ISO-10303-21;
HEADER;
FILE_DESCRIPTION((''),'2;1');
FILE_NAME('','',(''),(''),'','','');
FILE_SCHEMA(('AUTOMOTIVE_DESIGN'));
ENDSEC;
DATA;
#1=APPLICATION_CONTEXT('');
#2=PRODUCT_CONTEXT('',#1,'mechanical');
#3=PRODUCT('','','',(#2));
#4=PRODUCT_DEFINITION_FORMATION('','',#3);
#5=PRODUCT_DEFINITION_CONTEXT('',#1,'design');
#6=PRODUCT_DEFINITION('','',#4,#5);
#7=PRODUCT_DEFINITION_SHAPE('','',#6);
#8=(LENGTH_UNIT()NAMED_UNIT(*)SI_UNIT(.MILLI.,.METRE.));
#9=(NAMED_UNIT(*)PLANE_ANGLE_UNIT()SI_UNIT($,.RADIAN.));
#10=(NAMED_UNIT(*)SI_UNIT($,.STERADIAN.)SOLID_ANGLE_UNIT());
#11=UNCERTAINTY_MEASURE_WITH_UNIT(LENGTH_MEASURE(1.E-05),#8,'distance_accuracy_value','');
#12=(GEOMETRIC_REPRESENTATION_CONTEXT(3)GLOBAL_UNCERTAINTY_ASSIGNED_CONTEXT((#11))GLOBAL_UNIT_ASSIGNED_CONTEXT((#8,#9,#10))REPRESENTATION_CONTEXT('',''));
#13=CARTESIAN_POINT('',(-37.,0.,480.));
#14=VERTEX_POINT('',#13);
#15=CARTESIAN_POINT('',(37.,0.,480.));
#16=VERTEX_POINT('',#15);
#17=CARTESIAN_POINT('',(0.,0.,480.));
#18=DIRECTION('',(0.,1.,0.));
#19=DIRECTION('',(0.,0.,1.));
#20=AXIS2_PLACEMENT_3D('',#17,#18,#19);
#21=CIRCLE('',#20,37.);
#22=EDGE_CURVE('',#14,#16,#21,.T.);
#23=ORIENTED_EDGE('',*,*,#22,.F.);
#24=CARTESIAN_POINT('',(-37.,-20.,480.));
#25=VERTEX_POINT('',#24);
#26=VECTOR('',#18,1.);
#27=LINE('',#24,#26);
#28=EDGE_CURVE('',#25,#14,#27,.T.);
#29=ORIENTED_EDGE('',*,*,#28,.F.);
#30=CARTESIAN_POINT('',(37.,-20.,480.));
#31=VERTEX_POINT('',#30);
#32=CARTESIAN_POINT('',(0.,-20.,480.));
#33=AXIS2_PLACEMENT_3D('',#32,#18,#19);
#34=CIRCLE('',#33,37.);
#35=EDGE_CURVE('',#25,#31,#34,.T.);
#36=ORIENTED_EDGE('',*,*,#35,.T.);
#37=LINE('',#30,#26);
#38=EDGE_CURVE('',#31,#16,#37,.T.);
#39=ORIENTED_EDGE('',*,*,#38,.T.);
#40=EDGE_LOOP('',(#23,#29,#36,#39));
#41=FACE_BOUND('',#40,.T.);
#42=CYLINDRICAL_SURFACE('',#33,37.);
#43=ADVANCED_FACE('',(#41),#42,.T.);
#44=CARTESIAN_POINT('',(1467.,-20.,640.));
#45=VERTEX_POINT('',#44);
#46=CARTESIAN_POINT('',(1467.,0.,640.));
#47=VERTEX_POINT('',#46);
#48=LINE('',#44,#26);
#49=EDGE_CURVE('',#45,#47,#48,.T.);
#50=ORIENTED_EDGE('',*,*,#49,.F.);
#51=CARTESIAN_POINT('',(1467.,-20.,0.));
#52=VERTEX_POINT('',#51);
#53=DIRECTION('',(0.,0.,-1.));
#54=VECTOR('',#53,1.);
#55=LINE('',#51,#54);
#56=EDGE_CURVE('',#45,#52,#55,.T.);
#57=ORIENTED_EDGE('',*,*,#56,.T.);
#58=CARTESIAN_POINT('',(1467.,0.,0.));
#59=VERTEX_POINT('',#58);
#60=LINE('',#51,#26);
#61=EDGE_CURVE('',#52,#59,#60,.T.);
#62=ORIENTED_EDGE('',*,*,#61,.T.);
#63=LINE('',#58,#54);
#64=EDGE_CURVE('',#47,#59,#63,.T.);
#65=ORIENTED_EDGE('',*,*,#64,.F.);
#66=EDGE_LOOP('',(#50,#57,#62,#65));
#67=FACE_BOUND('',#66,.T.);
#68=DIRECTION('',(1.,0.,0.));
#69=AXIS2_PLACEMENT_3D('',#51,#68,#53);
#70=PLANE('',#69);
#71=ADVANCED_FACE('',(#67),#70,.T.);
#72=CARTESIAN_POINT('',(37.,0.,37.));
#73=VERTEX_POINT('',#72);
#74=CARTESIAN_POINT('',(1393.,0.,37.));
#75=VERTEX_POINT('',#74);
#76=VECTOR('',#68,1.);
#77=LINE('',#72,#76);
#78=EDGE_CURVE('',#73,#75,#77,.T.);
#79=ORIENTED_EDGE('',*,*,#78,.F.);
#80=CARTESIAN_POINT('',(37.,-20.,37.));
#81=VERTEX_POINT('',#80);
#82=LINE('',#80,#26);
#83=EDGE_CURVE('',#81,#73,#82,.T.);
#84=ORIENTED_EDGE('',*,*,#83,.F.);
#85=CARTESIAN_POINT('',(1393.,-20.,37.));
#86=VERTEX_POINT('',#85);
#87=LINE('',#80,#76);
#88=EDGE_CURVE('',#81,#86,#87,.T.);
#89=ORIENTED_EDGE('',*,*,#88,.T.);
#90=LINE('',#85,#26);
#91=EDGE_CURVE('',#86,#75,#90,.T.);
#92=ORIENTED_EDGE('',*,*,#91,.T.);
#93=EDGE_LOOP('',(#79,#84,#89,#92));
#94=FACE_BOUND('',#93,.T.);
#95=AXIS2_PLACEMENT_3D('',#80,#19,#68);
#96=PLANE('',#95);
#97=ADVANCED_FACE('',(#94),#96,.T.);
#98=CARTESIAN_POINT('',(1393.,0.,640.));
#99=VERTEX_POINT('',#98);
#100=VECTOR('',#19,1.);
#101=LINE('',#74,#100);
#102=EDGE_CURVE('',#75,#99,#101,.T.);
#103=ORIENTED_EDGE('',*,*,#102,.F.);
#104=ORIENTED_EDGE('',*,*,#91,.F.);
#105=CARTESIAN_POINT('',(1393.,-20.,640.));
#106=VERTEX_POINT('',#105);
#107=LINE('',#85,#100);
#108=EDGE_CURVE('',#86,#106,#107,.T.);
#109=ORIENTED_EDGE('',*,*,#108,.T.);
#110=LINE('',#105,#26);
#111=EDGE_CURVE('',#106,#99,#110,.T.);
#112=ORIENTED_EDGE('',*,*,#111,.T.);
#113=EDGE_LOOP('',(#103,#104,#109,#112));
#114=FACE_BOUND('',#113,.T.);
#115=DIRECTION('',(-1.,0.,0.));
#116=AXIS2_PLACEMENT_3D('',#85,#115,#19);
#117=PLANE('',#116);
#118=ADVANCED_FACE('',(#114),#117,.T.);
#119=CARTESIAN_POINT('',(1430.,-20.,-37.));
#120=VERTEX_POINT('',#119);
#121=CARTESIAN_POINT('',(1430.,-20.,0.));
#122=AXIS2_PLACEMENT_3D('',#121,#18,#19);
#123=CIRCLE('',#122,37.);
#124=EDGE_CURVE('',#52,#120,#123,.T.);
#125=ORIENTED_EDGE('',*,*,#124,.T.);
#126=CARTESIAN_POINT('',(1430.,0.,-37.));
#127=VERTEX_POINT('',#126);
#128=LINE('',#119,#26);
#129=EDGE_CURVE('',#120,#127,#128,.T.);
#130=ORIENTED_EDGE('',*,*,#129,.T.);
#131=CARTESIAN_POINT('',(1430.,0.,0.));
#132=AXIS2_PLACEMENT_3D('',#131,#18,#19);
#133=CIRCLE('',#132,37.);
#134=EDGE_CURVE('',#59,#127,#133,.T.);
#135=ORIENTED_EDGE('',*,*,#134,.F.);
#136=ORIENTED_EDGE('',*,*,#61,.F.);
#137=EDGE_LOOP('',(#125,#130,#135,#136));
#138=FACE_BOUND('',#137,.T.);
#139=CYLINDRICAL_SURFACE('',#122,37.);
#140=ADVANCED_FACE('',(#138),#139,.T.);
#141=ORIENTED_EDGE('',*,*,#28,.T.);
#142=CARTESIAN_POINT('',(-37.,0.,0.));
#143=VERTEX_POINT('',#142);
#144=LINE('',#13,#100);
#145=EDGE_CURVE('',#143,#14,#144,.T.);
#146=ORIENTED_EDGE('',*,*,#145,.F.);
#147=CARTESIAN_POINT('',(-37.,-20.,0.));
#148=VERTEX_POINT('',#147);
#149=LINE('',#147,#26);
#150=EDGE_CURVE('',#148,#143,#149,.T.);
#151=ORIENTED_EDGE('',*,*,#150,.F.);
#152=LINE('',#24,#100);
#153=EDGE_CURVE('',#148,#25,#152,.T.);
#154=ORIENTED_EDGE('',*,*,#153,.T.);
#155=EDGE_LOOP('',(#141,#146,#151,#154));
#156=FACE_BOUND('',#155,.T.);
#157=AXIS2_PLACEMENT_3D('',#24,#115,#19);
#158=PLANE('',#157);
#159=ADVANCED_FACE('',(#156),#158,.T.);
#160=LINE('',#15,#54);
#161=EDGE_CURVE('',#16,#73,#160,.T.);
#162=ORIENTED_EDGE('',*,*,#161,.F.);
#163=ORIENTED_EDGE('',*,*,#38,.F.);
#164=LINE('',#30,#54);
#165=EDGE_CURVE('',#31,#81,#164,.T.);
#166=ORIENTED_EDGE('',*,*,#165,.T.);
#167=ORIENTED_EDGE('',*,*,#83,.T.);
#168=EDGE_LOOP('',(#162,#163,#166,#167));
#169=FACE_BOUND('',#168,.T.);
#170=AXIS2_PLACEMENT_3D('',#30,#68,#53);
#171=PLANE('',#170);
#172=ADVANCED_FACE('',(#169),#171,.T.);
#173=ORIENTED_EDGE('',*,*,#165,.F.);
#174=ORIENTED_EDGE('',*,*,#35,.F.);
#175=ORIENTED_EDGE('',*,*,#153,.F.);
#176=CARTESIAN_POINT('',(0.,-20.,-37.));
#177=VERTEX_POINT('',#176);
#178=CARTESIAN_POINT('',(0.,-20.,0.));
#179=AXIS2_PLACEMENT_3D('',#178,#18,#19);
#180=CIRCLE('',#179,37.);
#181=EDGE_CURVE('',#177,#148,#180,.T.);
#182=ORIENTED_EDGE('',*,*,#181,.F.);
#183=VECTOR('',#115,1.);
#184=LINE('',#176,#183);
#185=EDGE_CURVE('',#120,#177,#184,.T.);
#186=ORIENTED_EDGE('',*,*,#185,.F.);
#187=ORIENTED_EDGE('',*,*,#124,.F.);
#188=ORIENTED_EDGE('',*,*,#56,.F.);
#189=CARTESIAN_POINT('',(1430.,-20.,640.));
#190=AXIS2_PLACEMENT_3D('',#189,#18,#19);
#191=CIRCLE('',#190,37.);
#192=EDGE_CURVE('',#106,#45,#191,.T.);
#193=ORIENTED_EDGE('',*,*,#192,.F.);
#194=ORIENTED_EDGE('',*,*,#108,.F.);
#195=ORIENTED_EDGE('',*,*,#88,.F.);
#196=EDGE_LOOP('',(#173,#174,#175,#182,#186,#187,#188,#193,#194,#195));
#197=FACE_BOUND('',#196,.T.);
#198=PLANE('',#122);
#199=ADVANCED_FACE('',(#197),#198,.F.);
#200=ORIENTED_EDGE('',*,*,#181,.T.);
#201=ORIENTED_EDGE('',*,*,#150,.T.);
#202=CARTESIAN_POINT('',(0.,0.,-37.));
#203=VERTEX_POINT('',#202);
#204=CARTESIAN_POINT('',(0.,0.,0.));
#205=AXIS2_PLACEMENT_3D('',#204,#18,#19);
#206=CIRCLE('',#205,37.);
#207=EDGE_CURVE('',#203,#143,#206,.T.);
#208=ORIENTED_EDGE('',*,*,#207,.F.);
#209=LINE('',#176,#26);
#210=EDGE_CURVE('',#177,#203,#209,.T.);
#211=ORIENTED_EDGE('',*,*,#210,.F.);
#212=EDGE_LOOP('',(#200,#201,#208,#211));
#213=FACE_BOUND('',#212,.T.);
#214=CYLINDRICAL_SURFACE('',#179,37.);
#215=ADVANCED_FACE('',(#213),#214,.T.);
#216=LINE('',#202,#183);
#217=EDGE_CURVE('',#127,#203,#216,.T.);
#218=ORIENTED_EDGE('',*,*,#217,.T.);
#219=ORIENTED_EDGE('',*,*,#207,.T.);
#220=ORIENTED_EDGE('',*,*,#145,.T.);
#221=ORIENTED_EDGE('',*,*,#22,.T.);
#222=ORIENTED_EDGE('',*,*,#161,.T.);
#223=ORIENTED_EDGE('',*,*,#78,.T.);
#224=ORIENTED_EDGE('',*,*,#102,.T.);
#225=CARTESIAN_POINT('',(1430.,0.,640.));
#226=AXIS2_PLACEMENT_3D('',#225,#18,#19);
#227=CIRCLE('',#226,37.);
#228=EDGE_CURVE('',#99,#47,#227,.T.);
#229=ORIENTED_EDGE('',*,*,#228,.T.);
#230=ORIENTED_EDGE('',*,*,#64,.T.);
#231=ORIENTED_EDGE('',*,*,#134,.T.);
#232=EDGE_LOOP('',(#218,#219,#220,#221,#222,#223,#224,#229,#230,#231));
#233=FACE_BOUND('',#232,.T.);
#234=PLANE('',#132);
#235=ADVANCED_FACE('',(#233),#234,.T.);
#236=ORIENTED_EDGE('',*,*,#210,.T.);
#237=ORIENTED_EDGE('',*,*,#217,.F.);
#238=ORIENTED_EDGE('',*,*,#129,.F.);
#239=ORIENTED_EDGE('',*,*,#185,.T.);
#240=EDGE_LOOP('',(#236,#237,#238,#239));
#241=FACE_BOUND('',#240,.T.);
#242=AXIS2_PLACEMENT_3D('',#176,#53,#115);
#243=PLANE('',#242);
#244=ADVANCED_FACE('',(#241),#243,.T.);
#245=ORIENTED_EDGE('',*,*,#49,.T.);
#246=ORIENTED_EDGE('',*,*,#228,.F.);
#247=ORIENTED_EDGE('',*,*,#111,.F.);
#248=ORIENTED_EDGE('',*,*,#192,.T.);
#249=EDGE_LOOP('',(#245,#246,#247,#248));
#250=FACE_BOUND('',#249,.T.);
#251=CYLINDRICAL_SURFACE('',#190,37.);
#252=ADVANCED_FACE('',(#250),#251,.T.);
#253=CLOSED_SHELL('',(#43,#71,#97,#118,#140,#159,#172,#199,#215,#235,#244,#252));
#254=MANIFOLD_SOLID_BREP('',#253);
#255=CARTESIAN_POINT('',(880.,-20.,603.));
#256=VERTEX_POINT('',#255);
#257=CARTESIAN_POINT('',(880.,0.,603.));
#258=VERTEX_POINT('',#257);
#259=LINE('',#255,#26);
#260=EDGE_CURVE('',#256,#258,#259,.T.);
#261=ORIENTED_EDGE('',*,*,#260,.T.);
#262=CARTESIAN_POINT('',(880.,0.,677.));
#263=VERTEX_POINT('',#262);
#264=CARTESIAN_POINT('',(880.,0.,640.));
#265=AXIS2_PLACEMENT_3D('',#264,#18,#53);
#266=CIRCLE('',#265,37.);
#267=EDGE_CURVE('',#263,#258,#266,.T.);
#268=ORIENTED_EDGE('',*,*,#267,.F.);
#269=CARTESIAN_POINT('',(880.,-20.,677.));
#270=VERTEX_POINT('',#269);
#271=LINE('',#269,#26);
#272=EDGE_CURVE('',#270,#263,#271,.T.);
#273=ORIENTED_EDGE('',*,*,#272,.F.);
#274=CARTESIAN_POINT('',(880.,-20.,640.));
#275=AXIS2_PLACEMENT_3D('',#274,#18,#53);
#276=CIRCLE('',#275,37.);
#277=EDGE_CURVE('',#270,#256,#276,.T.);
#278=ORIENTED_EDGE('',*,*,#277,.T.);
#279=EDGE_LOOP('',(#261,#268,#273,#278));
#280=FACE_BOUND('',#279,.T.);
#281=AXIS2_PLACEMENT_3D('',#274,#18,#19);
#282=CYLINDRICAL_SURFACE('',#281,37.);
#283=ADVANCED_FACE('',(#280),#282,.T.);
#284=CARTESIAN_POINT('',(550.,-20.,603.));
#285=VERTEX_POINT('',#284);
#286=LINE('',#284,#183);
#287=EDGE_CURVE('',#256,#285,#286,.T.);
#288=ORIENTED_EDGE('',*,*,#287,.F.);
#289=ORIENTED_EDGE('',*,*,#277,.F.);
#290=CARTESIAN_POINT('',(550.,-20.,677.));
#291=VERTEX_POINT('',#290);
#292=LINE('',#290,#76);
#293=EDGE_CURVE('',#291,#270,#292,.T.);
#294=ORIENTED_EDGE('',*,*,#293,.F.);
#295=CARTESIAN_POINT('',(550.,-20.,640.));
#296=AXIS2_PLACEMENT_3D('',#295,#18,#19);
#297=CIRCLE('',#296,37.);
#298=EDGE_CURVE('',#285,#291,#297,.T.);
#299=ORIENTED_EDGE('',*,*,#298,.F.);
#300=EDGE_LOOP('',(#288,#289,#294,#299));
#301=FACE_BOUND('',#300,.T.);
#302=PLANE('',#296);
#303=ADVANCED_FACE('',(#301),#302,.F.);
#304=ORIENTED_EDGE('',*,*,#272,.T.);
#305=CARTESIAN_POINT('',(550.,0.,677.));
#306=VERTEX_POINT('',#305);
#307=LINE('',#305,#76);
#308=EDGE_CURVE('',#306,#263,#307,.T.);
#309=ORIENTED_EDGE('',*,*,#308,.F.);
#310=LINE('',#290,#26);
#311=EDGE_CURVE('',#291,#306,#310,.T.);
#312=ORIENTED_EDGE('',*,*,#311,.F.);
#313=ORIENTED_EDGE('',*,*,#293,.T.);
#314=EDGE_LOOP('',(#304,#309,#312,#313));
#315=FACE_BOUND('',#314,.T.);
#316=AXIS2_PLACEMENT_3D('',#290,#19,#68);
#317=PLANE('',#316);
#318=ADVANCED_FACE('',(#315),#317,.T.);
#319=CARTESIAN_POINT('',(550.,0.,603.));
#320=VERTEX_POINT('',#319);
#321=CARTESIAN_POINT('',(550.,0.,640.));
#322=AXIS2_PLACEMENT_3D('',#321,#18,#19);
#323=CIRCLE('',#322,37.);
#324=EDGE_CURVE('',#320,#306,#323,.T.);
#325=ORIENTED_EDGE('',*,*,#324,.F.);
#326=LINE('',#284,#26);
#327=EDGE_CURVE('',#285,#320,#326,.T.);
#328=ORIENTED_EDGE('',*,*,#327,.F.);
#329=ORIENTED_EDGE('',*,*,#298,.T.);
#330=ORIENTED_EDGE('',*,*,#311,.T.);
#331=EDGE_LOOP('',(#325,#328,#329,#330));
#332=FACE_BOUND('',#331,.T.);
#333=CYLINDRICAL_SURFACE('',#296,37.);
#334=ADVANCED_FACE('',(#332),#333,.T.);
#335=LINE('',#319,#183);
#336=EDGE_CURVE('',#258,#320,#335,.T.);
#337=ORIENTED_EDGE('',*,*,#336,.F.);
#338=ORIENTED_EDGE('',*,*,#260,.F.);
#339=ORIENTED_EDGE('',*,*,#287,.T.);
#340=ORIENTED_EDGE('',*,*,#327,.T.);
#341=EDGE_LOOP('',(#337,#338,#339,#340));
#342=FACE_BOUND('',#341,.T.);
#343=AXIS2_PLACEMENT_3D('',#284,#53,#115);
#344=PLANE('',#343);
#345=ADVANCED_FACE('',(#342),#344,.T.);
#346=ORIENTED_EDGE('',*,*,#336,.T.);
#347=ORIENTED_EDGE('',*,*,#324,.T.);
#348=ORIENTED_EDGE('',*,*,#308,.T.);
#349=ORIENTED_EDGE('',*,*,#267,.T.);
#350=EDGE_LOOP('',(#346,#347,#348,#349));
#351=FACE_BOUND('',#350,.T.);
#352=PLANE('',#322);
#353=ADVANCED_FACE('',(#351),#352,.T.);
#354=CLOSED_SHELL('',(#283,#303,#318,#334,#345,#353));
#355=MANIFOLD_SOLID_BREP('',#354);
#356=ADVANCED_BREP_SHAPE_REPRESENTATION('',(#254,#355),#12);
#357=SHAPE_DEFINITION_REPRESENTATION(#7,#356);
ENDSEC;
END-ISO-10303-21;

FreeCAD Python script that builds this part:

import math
import FreeCAD as App
import Part
import Sketcher
from FreeCAD import Vector

doc = App.newDocument("Part")
body = doc.addObject("PartDesign::Body", "Body")

# Sketch on XZ plane
sketch1 = body.newObject("Sketcher::SketchObject", "Sketch")
sketch1.AttachmentSupport = (doc.getObject("XZ_Plane"), [""])
sketch1.MapMode = "FlatFace"
sketch1.addGeometry([
    Part.LineSegment(Vector(37, 480, 0), Vector(37, 37, 0)),  # 0
    Part.LineSegment(Vector(37, 37, 0), Vector(1393, 37, 0)),  # 1
    Part.LineSegment(Vector(1393, 37, 0), Vector(1393, 640, 0)),  # 2
    Part.ArcOfCircle(Part.Circle(Vector(1430, 640, 0), Vector(0, 0, 1), 37), math.radians(0), math.radians(180)),  # 3
    Part.LineSegment(Vector(1467, 640, 0), Vector(1467, 0, 0)),  # 4
    Part.ArcOfCircle(Part.Circle(Vector(1430, 0, 0), Vector(0, 0, 1), 37), math.radians(-90), math.radians(0)),  # 5
    Part.LineSegment(Vector(1430, -37, 0), Vector(0, -37, 0)),  # 6
    Part.ArcOfCircle(Part.Circle(Vector(0, 0, 0), Vector(0, 0, 1), 37), math.radians(180), math.radians(270)),  # 7
    Part.LineSegment(Vector(-37, 0, 0), Vector(-37, 480, 0)),  # 8
    Part.ArcOfCircle(Part.Circle(Vector(0, 480, 0), Vector(0, 0, 1), 37), math.radians(0), math.radians(180)),  # 9
], False)
sketch1.addConstraint([
    Sketcher.Constraint("Coincident", 0, 2, 1, 1),
    Sketcher.Constraint("Coincident", 1, 2, 2, 1),
    Sketcher.Constraint("Tangent", 2, 2, 3, 2),
    Sketcher.Constraint("Tangent", 3, 1, 4, 1),
    Sketcher.Constraint("Tangent", 4, 2, 5, 2),
    Sketcher.Constraint("Tangent", 5, 1, 6, 1),
    Sketcher.Constraint("Tangent", 6, 2, 7, 2),
    Sketcher.Constraint("Tangent", 7, 1, 8, 1),
    Sketcher.Constraint("Tangent", 8, 2, 9, 2),
    Sketcher.Constraint("Tangent", 9, 1, 0, 1),
    Sketcher.Constraint("Vertical", 0),
    Sketcher.Constraint("Horizontal", 1),
    Sketcher.Constraint("Vertical", 2),
    Sketcher.Constraint("Vertical", 4),
    Sketcher.Constraint("Horizontal", 6),
    Sketcher.Constraint("Vertical", 8),
    Sketcher.Constraint("Coincident", 7, 3, -1, 1),
    Sketcher.Constraint("Equal", 3, 5),
    Sketcher.Constraint("Equal", 5, 7),
    Sketcher.Constraint("Equal", 7, 9),
    Sketcher.Constraint("Radius", 3, 37.0),
    Sketcher.Constraint("DistanceX", 1, 1, 1, 2, 1356.0),
    Sketcher.Constraint("DistanceY", 0, 2, 0, 1, 443.0),
    Sketcher.Constraint("DistanceY", 2, 1, 2, 2, 603.0),
    Sketcher.Constraint("DistanceY", 4, 2, 4, 1, 640.0),
])
pad1 = body.newObject("PartDesign::Pad", "Pad")
pad1.Profile = sketch1
pad1.Length = 20
body2 = doc.addObject("PartDesign::Body", "Body001")

# Sketch on XZ plane
sketch2 = body2.newObject("Sketcher::SketchObject", "Sketch001")
sketch2.AttachmentSupport = (doc.getObject("XZ_Plane001"), [""])
sketch2.MapMode = "FlatFace"
sketch2.addGeometry([
    Part.LineSegment(Vector(550, 677, 0), Vector(880, 677, 0)),
    Part.ArcOfCircle(Part.Circle(Vector(880, 640, 0), Vector(0, 0, 1), 37), math.radians(-90), math.radians(90)),
    Part.LineSegment(Vector(880, 603, 0), Vector(550, 603, 0)),
    Part.ArcOfCircle(Part.Circle(Vector(550, 640, 0), Vector(0, 0, 1), 37), math.radians(90), math.radians(270)),
], False)
sketch2.addConstraint([
    Sketcher.Constraint("Tangent", 0, 2, 1, 2),
    Sketcher.Constraint("Tangent", 1, 1, 2, 1),
    Sketcher.Constraint("Tangent", 2, 2, 3, 2),
    Sketcher.Constraint("Tangent", 3, 1, 0, 1),
    Sketcher.Constraint("Horizontal", 0),
    Sketcher.Constraint("Horizontal", 2),
    Sketcher.Constraint("Radius", 1, 37.0),
    Sketcher.Constraint("DistanceX", 0, 1, 0, 2, 330.0),
    Sketcher.Constraint("DistanceX", -1, 1, 1, 3, 880.0),
    Sketcher.Constraint("DistanceY", -1, 1, 1, 3, 640.0),
])
pad2 = body2.newObject("PartDesign::Pad", "Pad001")
pad2.Profile = sketch2
pad2.Length = 20

doc.recompute()
